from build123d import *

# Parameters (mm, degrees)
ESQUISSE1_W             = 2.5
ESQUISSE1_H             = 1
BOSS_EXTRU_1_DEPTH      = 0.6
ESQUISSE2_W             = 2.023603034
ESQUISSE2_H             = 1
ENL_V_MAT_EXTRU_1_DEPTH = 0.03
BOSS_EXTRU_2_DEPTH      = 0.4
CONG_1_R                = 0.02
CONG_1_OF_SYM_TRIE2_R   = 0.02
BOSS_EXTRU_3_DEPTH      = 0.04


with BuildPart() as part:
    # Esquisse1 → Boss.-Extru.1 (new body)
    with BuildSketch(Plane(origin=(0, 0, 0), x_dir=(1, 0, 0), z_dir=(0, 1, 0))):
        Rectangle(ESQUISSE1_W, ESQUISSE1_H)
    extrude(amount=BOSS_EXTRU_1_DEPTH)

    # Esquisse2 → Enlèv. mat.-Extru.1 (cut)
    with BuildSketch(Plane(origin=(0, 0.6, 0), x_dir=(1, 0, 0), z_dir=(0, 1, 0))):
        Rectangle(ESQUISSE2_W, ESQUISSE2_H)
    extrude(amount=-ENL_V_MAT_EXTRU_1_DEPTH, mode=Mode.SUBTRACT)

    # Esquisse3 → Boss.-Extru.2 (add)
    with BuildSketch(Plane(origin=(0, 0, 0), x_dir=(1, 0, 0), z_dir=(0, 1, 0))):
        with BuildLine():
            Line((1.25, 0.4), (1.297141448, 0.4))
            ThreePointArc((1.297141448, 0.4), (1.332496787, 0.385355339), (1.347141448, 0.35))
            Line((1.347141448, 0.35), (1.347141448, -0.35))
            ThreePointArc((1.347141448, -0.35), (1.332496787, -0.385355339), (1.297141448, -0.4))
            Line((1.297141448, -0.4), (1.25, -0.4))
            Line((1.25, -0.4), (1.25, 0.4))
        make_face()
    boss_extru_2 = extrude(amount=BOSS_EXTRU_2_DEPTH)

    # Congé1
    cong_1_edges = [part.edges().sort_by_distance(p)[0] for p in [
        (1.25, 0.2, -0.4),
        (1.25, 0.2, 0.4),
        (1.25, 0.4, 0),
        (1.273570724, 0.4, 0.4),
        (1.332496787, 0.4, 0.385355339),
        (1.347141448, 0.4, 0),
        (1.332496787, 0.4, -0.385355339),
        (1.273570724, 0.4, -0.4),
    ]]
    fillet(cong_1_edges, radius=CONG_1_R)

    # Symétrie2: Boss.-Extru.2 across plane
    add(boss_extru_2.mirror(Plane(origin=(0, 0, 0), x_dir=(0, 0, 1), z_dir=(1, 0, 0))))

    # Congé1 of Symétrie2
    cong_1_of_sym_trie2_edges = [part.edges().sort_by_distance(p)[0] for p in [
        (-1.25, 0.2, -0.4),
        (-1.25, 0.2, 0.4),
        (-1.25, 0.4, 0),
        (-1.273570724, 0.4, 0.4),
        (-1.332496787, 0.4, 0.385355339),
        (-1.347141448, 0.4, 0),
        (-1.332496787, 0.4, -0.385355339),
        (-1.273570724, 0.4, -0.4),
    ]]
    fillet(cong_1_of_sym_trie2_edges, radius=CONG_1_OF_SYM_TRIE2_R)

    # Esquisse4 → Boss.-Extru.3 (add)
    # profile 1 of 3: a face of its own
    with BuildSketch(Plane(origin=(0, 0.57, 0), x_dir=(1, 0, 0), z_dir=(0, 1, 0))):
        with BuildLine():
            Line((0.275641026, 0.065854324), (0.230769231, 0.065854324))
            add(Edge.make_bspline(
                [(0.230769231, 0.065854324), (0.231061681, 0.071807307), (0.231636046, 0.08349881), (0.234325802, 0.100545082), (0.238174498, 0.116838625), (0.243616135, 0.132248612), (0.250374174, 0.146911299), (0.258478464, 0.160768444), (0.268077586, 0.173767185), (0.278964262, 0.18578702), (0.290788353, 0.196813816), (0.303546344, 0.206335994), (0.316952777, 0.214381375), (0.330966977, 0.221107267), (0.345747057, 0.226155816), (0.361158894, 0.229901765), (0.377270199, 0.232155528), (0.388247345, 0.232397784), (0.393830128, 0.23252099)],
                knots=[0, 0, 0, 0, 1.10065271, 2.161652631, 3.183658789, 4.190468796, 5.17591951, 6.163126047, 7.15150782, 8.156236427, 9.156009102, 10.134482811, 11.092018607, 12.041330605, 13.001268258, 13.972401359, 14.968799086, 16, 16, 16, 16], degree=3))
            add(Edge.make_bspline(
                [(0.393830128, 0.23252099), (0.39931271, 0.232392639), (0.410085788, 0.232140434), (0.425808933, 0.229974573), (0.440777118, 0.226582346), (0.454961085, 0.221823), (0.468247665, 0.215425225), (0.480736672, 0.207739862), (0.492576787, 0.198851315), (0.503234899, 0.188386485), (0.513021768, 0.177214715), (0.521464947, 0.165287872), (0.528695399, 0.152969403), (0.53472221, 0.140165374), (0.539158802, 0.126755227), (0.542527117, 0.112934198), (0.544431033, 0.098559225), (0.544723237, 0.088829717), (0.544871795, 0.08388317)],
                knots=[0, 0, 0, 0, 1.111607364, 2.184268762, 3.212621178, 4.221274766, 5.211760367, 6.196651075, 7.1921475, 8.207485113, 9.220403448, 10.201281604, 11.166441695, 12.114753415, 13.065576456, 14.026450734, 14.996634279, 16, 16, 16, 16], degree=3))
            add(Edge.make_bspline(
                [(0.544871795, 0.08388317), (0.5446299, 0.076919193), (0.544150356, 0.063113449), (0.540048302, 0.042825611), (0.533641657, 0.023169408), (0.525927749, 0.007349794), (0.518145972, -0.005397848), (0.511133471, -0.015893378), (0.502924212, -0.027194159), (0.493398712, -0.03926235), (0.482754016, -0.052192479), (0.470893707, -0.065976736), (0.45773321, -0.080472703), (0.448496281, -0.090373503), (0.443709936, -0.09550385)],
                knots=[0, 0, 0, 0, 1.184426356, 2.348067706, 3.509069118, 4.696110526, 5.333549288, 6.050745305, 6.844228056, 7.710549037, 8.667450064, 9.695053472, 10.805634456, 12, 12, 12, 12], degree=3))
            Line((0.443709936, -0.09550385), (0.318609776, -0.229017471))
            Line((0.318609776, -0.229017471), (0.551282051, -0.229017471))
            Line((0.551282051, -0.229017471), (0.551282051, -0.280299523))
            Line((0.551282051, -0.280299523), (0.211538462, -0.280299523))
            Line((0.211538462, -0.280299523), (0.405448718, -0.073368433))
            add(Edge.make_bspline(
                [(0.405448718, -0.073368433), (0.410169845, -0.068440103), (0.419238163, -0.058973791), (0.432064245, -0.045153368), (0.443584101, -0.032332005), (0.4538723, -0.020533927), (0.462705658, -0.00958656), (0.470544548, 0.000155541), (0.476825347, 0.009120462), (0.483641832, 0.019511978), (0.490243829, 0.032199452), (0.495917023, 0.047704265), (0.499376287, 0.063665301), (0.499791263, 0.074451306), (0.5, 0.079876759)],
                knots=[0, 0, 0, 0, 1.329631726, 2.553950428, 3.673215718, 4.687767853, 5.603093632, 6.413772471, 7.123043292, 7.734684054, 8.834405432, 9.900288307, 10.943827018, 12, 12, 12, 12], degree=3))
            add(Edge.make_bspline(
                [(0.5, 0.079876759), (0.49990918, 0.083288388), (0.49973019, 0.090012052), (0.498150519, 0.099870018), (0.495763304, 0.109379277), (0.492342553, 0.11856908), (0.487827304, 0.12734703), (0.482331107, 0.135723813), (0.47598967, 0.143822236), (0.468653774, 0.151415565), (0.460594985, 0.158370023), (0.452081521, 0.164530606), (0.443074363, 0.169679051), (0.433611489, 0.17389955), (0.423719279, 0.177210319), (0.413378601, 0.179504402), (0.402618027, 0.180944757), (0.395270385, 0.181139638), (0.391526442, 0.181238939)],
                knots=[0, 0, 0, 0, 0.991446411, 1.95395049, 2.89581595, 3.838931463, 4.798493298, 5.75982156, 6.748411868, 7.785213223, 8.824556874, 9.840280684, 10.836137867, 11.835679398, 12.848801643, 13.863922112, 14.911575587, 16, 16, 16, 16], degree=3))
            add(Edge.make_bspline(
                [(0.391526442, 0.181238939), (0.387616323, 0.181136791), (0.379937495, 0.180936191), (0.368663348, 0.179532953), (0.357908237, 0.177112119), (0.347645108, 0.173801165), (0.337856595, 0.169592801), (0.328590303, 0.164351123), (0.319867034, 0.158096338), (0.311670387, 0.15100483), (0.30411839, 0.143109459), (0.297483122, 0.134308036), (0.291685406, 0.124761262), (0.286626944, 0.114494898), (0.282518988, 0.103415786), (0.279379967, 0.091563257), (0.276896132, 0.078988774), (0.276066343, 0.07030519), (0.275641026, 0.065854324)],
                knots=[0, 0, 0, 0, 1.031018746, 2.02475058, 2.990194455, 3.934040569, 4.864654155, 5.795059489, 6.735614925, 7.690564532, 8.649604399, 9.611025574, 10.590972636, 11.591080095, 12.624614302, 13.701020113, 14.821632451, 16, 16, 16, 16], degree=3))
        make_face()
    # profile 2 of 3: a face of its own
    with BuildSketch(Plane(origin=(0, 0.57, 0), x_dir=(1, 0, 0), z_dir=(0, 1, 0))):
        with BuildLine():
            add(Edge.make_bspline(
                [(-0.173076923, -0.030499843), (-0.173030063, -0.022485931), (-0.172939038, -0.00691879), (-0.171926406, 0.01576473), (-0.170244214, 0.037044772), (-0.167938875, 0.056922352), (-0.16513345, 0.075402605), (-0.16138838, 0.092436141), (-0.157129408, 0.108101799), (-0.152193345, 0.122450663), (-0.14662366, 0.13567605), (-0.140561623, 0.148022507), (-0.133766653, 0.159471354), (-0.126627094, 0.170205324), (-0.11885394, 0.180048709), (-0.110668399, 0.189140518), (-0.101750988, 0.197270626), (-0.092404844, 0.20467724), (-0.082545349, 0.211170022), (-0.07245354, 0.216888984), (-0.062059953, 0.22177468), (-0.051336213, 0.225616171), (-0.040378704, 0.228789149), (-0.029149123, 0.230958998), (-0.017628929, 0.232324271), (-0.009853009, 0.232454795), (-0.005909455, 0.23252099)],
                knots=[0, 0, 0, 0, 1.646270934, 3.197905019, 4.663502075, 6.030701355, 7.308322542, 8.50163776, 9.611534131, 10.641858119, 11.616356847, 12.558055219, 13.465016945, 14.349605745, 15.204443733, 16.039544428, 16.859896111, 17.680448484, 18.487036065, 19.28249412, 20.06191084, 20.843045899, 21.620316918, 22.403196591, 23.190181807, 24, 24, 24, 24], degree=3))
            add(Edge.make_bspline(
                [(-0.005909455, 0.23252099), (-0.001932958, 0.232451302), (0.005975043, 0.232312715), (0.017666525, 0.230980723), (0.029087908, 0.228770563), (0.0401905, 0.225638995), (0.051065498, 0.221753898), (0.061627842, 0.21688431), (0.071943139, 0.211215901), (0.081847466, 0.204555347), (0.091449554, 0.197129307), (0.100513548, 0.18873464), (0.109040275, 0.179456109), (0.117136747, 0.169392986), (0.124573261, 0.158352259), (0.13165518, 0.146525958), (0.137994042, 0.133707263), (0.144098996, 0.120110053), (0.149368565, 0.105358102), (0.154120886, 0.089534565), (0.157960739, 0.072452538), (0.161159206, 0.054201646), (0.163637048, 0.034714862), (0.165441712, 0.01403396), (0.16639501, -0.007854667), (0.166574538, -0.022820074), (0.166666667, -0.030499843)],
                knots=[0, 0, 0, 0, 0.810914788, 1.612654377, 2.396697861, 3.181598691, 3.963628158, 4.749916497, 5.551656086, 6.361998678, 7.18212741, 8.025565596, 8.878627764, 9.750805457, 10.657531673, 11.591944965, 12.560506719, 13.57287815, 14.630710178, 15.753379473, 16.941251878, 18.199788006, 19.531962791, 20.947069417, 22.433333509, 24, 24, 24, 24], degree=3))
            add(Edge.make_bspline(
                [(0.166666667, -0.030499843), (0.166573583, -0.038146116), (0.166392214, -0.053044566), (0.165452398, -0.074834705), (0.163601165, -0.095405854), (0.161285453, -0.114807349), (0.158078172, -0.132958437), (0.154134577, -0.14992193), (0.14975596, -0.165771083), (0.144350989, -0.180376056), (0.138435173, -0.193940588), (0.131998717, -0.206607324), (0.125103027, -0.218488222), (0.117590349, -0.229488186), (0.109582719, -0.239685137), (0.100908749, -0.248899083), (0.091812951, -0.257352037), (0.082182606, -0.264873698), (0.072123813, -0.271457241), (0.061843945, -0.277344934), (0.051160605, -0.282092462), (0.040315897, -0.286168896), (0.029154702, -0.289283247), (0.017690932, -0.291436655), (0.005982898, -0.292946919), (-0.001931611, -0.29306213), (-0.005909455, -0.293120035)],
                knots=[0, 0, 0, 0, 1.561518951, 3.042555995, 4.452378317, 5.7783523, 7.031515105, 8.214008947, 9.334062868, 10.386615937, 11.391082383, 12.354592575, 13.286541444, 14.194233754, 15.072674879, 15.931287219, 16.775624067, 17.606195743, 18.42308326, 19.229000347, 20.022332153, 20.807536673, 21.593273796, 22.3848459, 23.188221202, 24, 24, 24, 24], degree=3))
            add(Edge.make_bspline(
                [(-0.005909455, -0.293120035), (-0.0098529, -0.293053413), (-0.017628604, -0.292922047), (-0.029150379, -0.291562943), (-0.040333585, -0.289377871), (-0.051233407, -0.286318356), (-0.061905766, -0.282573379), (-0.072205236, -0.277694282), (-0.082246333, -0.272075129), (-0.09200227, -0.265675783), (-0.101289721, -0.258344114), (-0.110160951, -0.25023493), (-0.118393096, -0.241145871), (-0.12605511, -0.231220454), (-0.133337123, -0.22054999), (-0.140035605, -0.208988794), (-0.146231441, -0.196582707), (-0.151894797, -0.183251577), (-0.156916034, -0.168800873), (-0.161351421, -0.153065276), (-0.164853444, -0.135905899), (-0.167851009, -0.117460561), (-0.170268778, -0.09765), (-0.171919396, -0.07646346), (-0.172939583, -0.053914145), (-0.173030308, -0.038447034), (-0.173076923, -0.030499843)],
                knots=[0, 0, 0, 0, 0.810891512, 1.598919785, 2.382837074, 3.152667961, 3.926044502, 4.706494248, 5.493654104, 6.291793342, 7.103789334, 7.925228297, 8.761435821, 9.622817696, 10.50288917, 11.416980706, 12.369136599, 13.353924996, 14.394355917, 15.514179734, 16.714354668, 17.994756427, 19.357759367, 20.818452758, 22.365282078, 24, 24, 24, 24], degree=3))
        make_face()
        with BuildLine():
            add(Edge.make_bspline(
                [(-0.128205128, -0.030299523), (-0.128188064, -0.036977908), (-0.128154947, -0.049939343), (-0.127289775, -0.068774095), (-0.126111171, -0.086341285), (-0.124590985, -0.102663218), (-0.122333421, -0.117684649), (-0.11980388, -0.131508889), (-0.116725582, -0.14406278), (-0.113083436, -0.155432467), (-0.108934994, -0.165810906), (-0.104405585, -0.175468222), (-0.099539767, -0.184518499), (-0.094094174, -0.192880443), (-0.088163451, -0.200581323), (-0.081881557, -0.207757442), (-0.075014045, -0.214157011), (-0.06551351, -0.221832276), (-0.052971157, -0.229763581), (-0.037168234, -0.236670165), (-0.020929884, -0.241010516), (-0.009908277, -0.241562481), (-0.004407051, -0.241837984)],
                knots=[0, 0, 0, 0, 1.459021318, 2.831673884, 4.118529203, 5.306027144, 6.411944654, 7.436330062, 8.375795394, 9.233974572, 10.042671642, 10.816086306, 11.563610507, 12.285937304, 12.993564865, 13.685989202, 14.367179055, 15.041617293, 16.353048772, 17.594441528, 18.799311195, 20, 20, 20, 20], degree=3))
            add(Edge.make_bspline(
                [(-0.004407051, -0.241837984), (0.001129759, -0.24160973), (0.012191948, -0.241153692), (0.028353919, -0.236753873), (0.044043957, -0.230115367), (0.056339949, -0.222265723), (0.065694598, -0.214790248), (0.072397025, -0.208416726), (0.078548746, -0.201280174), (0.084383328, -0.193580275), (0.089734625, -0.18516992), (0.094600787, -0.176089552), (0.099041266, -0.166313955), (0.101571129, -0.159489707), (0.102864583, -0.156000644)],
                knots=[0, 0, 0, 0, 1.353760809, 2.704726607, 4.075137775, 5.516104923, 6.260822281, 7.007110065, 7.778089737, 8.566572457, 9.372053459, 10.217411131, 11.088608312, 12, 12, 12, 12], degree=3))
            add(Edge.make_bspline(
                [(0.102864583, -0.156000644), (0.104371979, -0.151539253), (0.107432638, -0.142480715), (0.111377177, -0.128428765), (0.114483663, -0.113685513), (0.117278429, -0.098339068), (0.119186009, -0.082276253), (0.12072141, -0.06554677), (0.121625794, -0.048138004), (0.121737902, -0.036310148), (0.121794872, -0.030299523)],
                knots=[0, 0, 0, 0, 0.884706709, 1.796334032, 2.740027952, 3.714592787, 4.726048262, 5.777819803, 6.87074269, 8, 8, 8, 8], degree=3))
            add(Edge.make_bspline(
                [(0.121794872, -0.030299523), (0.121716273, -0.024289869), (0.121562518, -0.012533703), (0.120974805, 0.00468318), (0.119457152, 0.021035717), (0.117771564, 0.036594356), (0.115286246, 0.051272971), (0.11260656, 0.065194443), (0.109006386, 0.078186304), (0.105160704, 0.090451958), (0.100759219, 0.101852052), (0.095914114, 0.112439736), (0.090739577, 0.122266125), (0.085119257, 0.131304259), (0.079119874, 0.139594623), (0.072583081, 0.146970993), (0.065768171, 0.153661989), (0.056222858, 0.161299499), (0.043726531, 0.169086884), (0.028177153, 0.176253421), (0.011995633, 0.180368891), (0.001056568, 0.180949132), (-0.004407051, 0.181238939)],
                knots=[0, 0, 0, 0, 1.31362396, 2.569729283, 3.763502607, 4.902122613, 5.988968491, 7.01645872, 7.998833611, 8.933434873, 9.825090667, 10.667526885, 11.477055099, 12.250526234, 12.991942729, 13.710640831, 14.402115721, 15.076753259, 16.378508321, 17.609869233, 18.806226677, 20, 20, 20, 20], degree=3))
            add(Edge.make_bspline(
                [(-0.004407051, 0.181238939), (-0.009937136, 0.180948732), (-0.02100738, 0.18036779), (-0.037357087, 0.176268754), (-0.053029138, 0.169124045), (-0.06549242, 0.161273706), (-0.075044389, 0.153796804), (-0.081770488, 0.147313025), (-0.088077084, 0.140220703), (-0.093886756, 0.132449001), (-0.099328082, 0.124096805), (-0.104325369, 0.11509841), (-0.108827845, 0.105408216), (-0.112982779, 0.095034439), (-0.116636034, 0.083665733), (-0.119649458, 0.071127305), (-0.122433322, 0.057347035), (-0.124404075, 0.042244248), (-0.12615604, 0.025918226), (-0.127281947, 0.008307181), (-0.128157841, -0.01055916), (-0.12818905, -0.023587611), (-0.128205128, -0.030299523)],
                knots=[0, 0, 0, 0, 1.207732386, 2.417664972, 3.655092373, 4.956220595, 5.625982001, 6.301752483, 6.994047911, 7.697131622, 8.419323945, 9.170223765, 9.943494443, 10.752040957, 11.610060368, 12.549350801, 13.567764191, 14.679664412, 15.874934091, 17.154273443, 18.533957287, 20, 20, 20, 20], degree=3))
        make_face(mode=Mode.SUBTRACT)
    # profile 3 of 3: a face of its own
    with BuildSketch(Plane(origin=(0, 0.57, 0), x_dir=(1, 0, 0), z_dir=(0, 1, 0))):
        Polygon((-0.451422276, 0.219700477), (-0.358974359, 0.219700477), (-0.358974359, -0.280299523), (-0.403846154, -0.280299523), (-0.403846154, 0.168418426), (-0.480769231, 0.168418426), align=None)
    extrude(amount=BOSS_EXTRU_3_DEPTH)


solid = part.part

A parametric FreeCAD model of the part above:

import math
import FreeCAD as App
import Part
import Sketcher

V = App.Vector
Q = App.Units.Quantity


def edges_at(feature, points):
    """Names of the edges that pass closest to the given points."""
    edges = feature.Shape.Edges
    near = lambda p: min(range(len(edges)), key=lambda i: edges[i].distToShape(Part.Vertex(*p))[0])
    return sorted({f"Edge{near(p) + 1}" for p in points})


def add_polygon(sketch, points):
    """Adds a closed chain of lines whose ends are joined by coincident constraints."""
    first, n = sketch.GeometryCount, len(points)
    for a, b in zip(points, points[1:] + points[:1]):
        sketch.addGeometry(Part.LineSegment(App.Vector(*a, 0), App.Vector(*b, 0)), False)
    for i in range(n):
        sketch.addConstraint(Sketcher.Constraint("Coincident", first + i, 2, first + (i + 1) % n, 1))

doc = App.newDocument("Part")
params = doc.addObject("Spreadsheet::Sheet", "Params")
for row, (alias, value) in enumerate([
    ("sketch1_height", "1 mm"),
    ("sketch1_width", "2.5 mm"),
    ("pad1_length", "0.6 mm"),
    ("sketch2_height", "1 mm"),
    ("pocket1_length", "0.03 mm"),
    ("sketch3_radius", "0.05 mm"),
    ("sketch3_height", "0.8 mm"),
    ("pad2_length", "0.4 mm"),
    ("fillet_radius", "0.02 mm"),
    ("fillet2_radius", "0.02 mm"),
    ("sketch4_height", "0.5 mm"),
    ("pad3_length", "0.04 mm"),
], start=1):
    params.set(f"A{row}", alias)
    params.set(f"B{row}", "=" + value)
    params.setAlias(f"B{row}", alias)

body = doc.addObject("PartDesign::Body", "Body")

sketch1 = body.newObject("Sketcher::SketchObject", "Sketch")
sketch1.AttachmentSupport = (doc.getObject("XZ_Plane"), [""])
sketch1.MapMode = "FlatFace"
add_polygon(sketch1, [(-1.25, -0.5), (-1.25, 0.5), (1.25, 0.5), (1.25, -0.5)])
sketch1.addConstraint(Sketcher.Constraint("Vertical", 0))
sketch1.addConstraint(Sketcher.Constraint("Horizontal", 1))
sketch1.addConstraint(Sketcher.Constraint("Vertical", 2))
sketch1.addConstraint(Sketcher.Constraint("Horizontal", 3))
sketch1.addConstraint(Sketcher.Constraint("Symmetric", 0, 2, 2, 2, -1, 1))
sketch1.addConstraint(Sketcher.Constraint("DistanceY", 0, 1, 0, 2, Q("1 mm")))
sketch1.addConstraint(Sketcher.Constraint("DistanceX", 1, 1, 1, 2, Q("2.5 mm")))
sketch1.setExpression("Constraints[9]", "Params.sketch1_height")
sketch1.setExpression("Constraints[10]", "Params.sketch1_width")
pad1 = body.newObject("PartDesign::Pad", "Pad")
pad1.Profile = sketch1
pad1.setExpression("Length", "Params.pad1_length")
pad1.Reversed = True

sketch2 = body.newObject("Sketcher::SketchObject", "Sketch001")
sketch2.AttachmentSupport = (doc.getObject("XZ_Plane"), [""])
sketch2.MapMode = "FlatFace"
sketch2.AttachmentOffset = App.Placement(V(0, 0, -0.6), App.Rotation())
add_polygon(sketch2, [(-1.011802, -0.5), (-1.011802, 0.5), (1.011802, 0.5), (1.011802, -0.5)])
sketch2.addConstraint(Sketcher.Constraint("Vertical", 0))
sketch2.addConstraint(Sketcher.Constraint("Horizontal", 1))
sketch2.addConstraint(Sketcher.Constraint("Vertical", 2))
sketch2.addConstraint(Sketcher.Constraint("Horizontal", 3))
sketch2.addConstraint(Sketcher.Constraint("Symmetric", 0, 2, 2, 2, -1, 1))
sketch2.addConstraint(Sketcher.Constraint("DistanceY", 0, 1, 0, 2, Q("1 mm")))
sketch2.addConstraint(Sketcher.Constraint("DistanceX", 0, 2, -1, 1, Q("1.011802 mm")))
sketch2.setExpression("Constraints[9]", "Params.sketch2_height")
pocket1 = body.newObject("PartDesign::Pocket", "Pocket")
pocket1.Profile = sketch2
pocket1.setExpression("Length", "Params.pocket1_length")
pocket1.Reversed = True

sketch3 = body.newObject("Sketcher::SketchObject", "Sketch002")
sketch3.AttachmentSupport = (doc.getObject("XZ_Plane"), [""])
sketch3.MapMode = "FlatFace"
sketch3.addGeometry(Part.LineSegment(V(1.297141, -0.4, 0), V(1.25, -0.4, 0)), False)
sketch3.addGeometry(Part.LineSegment(V(1.25, -0.4, 0), V(1.25, 0.4, 0)), False)
sketch3.addGeometry(Part.LineSegment(V(1.25, 0.4, 0), V(1.297141, 0.4, 0)), False)
sketch3.addGeometry(Part.ArcOfCircle(Part.Circle(V(1.297141, 0.35, 0), V(0, 0, 1), 0.05), math.radians(0), math.radians(90)), False)
sketch3.addGeometry(Part.LineSegment(V(1.347141, 0.35, 0), V(1.347141, -0.35, 0)), False)
sketch3.addGeometry(Part.ArcOfCircle(Part.Circle(V(1.297141, -0.35, 0), V(0, 0, 1), 0.05), math.radians(-90), math.radians(0)), False)
sketch3.addConstraint(Sketcher.Constraint("Coincident", 0, 2, 1, 1))
sketch3.addConstraint(Sketcher.Constraint("Coincident", 1, 2, 2, 1))
sketch3.addConstraint(Sketcher.Constraint("Tangent", 2, 2, 3, 2))
sketch3.addConstraint(Sketcher.Constraint("Tangent", 3, 1, 4, 1))
sketch3.addConstraint(Sketcher.Constraint("Tangent", 4, 2, 5, 2))
sketch3.addConstraint(Sketcher.Constraint("Tangent", 5, 1, 0, 1))
sketch3.addConstraint(Sketcher.Constraint("Horizontal", 0))
sketch3.addConstraint(Sketcher.Constraint("Vertical", 1))
sketch3.addConstraint(Sketcher.Constraint("Horizontal", 2))
sketch3.addConstraint(Sketcher.Constraint("Vertical", 4))
sketch3.addConstraint(Sketcher.Constraint("Equal", 3, 5))
sketch3.addConstraint(Sketcher.Constraint("Radius", 3, Q("0.05 mm")))
sketch3.addConstraint(Sketcher.Constraint("DistanceY", 1, 1, 1, 2, Q("0.8 mm")))
sketch3.addConstraint(Sketcher.Constraint("DistanceY", 0, 2, -1, 1, Q("0.4 mm")))
sketch3.addConstraint(Sketcher.Constraint("DistanceX", -1, 1, 0, 2, Q("1.25 mm")))
sketch3.addConstraint(Sketcher.Constraint("DistanceX", 0, 2, 0, 1, Q("0.047141 mm")))
sketch3.setExpression("Constraints[11]", "Params.sketch3_radius")
sketch3.setExpression("Constraints[12]", "Params.sketch3_height")
pad2 = body.newObject("PartDesign::Pad", "Pad001")
pad2.Profile = sketch3
pad2.setExpression("Length", "Params.pad2_length")
pad2.Reversed = True
doc.recompute()

fillet = body.newObject("PartDesign::Fillet", "Fillet")
fillet.Base = (pad2, edges_at(pad2, [
    (1.25, 0.2, -0.4),
    (1.25, 0.2, 0.4),
    (1.25, 0.4, 0),
    (1.274, 0.4, 0.4),
    (1.332, 0.4, 0.385),
    (1.347, 0.4, 0),
    (1.332, 0.4, -0.385),
    (1.274, 0.4, -0.4),
]))
fillet.setExpression("Radius", "Params.fillet_radius")
doc.recompute()

mirrored = body.newObject("PartDesign::Mirrored", "Mirrored")
mirrored.Originals = [pad2]
mirrored.MirrorPlane = (doc.getObject("YZ_Plane"), [""])
body.Tip = mirrored
doc.recompute()

fillet2 = body.newObject("PartDesign::Fillet", "Fillet001")
fillet2.Base = (mirrored, edges_at(mirrored, [
    (-1.25, 0.2, -0.4),
    (-1.25, 0.2, 0.4),
    (-1.25, 0.4, 0),
    (-1.274, 0.4, 0.4),
    (-1.332, 0.4, 0.385),
    (-1.347, 0.4, 0),
    (-1.332, 0.4, -0.385),
    (-1.274, 0.4, -0.4),
]))
fillet2.setExpression("Radius", "Params.fillet2_radius")

sketch4 = body.newObject("Sketcher::SketchObject", "Sketch003")
sketch4.AttachmentSupport = (doc.getObject("XZ_Plane"), [""])
sketch4.MapMode = "FlatFace"
sketch4.AttachmentOffset = App.Placement(V(0, 0, -0.57), App.Rotation())
sketch4.addGeometry(Part.LineSegment(V(0.230769, -0.065854, 0), V(0.275641, -0.065854, 0)), False)
sketch4.addGeometry(Part.BSplineCurve([V(0.391526, -0.181239, 0), V(0.387616, -0.181137, 0), V(0.379937, -0.180936, 0), V(0.368663, -0.179533, 0), V(0.357908, -0.177112, 0), V(0.347645, -0.173801, 0), V(0.337857, -0.169593, 0), V(0.32859, -0.164351, 0), V(0.319867, -0.158096, 0), V(0.31167, -0.151005, 0), V(0.304118, -0.143109, 0), V(0.297483, -0.134308, 0), V(0.291685, -0.124761, 0), V(0.286627, -0.114495, 0), V(0.282519, -0.103416, 0), V(0.27938, -0.091563, 0), V(0.276896, -0.078989, 0), V(0.276066, -0.070305, 0), V(0.275641, -0.065854, 0)], [4, 1, 1, 1, 1, 1, 1, 1, 1, 1, 1, 1, 1, 1, 1, 1, 4], [0, 1.031018746, 2.02475058, 2.990194455, 3.934040569, 4.864654155, 5.795059489, 6.735614925, 7.690564532, 8.649604399, 9.611025574, 10.590972636, 11.591080095, 12.624614302, 13.701020113, 14.821632451, 16], False, 3, [1, 1, 1, 1, 1, 1, 1, 1, 1, 1, 1, 1, 1, 1, 1, 1, 1, 1, 1], False), False)
sketch4.addGeometry(Part.BSplineCurve([V(0.5, -0.079877, 0), V(0.499909, -0.083288, 0), V(0.49973, -0.090012, 0), V(0.498151, -0.09987, 0), V(0.495763, -0.109379, 0), V(0.492343, -0.118569, 0), V(0.487827, -0.127347, 0), V(0.482331, -0.135724, 0), V(0.47599, -0.143822, 0), V(0.468654, -0.151416, 0), V(0.460595, -0.15837, 0), V(0.452082, -0.164531, 0), V(0.443074, -0.169679, 0), V(0.433611, -0.1739, 0), V(0.423719, -0.17721, 0), V(0.413379, -0.179504, 0), V(0.402618, -0.180945, 0), V(0.39527, -0.18114, 0), V(0.391526, -0.181239, 0)], [4, 1, 1, 1, 1, 1, 1, 1, 1, 1, 1, 1, 1, 1, 1, 1, 4], [0, 0.991446411, 1.95395049, 2.89581595, 3.838931463, 4.798493298, 5.75982156, 6.748411868, 7.785213223, 8.824556874, 9.840280684, 10.836137867, 11.835679398, 12.848801643, 13.863922112, 14.911575587, 16], False, 3, [1, 1, 1, 1, 1, 1, 1, 1, 1, 1, 1, 1, 1, 1, 1, 1, 1, 1, 1], False), False)
sketch4.addGeometry(Part.BSplineCurve([V(0.405449, 0.073368, 0), V(0.41017, 0.06844, 0), V(0.419238, 0.058974, 0), V(0.432064, 0.045153, 0), V(0.443584, 0.032332, 0), V(0.453872, 0.020534, 0), V(0.462706, 0.009587, 0), V(0.470545, -0.000156, 0), V(0.476825, -0.00912, 0), V(0.483642, -0.019512, 0), V(0.490244, -0.032199, 0), V(0.495917, -0.047704, 0), V(0.499376, -0.063665, 0), V(0.499791, -0.074451, 0), V(0.5, -0.079877, 0)], [4, 1, 1, 1, 1, 1, 1, 1, 1, 1, 1, 1, 4], [0, 1.329631726, 2.553950428, 3.673215718, 4.687767853, 5.603093632, 6.413772471, 7.123043292, 7.734684054, 8.834405432, 9.900288307, 10.943827018, 12], False, 3, [1, 1, 1, 1, 1, 1, 1, 1, 1, 1, 1, 1, 1, 1, 1], False), False)
sketch4.addGeometry(Part.LineSegment(V(0.405449, 0.073368, 0), V(0.211538, 0.2803, 0)), False)
sketch4.addGeometry(Part.LineSegment(V(0.211538, 0.2803, 0), V(0.551282, 0.2803, 0)), False)
sketch4.addGeometry(Part.LineSegment(V(0.551282, 0.2803, 0), V(0.551282, 0.229017, 0)), False)
sketch4.addGeometry(Part.LineSegment(V(0.551282, 0.229017, 0), V(0.31861, 0.229017, 0)), False)
sketch4.addGeometry(Part.LineSegment(V(0.31861, 0.229017, 0), V(0.44371, 0.095504, 0)), False)
sketch4.addGeometry(Part.BSplineCurve([V(0.544872, -0.083883, 0), V(0.54463, -0.076919, 0), V(0.54415, -0.063113, 0), V(0.540048, -0.042826, 0), V(0.533642, -0.023169, 0), V(0.525928, -0.00735, 0), V(0.518146, 0.005398, 0), V(0.511133, 0.015893, 0), V(0.502924, 0.027194, 0), V(0.493399, 0.039262, 0), V(0.482754, 0.052192, 0), V(0.470894, 0.065977, 0), V(0.457733, 0.080473, 0), V(0.448496, 0.090374, 0), V(0.44371, 0.095504, 0)], [4, 1, 1, 1, 1, 1, 1, 1, 1, 1, 1, 1, 4], [0, 1.184426356, 2.348067706, 3.509069118, 4.696110526, 5.333549288, 6.050745305, 6.844228056, 7.710549037, 8.667450064, 9.695053472, 10.805634456, 12], False, 3, [1, 1, 1, 1, 1, 1, 1, 1, 1, 1, 1, 1, 1, 1, 1], False), False)
sketch4.addGeometry(Part.BSplineCurve([V(0.39383, -0.232521, 0), V(0.399313, -0.232393, 0), V(0.410086, -0.23214, 0), V(0.425809, -0.229975, 0), V(0.440777, -0.226582, 0), V(0.454961, -0.221823, 0), V(0.468248, -0.215425, 0), V(0.480737, -0.20774, 0), V(0.492577, -0.198851, 0), V(0.503235, -0.188386, 0), V(0.513022, -0.177215, 0), V(0.521465, -0.165288, 0), V(0.528695, -0.152969, 0), V(0.534722, -0.140165, 0), V(0.539159, -0.126755, 0), V(0.542527, -0.112934, 0), V(0.544431, -0.098559, 0), V(0.544723, -0.08883, 0), V(0.544872, -0.083883, 0)], [4, 1, 1, 1, 1, 1, 1, 1, 1, 1, 1, 1, 1, 1, 1, 1, 4], [0, 1.111607364, 2.184268762, 3.212621178, 4.221274766, 5.211760367, 6.196651075, 7.1921475, 8.207485113, 9.220403448, 10.201281604, 11.166441695, 12.114753415, 13.065576456, 14.026450734, 14.996634279, 16], False, 3, [1, 1, 1, 1, 1, 1, 1, 1, 1, 1, 1, 1, 1, 1, 1, 1, 1, 1, 1], False), False)
sketch4.addGeometry(Part.BSplineCurve([V(0.230769, -0.065854, 0), V(0.231062, -0.071807, 0), V(0.231636, -0.083499, 0), V(0.234326, -0.100545, 0), V(0.238174, -0.116839, 0), V(0.243616, -0.132249, 0), V(0.250374, -0.146911, 0), V(0.258478, -0.160768, 0), V(0.268078, -0.173767, 0), V(0.278964, -0.185787, 0), V(0.290788, -0.196814, 0), V(0.303546, -0.206336, 0), V(0.316953, -0.214381, 0), V(0.330967, -0.221107, 0), V(0.345747, -0.226156, 0), V(0.361159, -0.229902, 0), V(0.37727, -0.232156, 0), V(0.388247, -0.232398, 0), V(0.39383, -0.232521, 0)], [4, 1, 1, 1, 1, 1, 1, 1, 1, 1, 1, 1, 1, 1, 1, 1, 4], [0, 1.10065271, 2.161652631, 3.183658789, 4.190468796, 5.17591951, 6.163126047, 7.15150782, 8.156236427, 9.156009102, 10.134482811, 11.092018607, 12.041330605, 13.001268258, 13.972401359, 14.968799086, 16], False, 3, [1, 1, 1, 1, 1, 1, 1, 1, 1, 1, 1, 1, 1, 1, 1, 1, 1, 1, 1], False), False)
sketch4.addGeometry(Part.BSplineCurve([V(-0.173077, 0.0305, 0), V(-0.17303, 0.022486, 0), V(-0.172939, 0.006919, 0), V(-0.171926, -0.015765, 0), V(-0.170244, -0.037045, 0), V(-0.167939, -0.056922, 0), V(-0.165133, -0.075403, 0), V(-0.161388, -0.092436, 0), V(-0.157129, -0.108102, 0), V(-0.152193, -0.122451, 0), V(-0.146624, -0.135676, 0), V(-0.140562, -0.148023, 0), V(-0.133767, -0.159471, 0), V(-0.126627, -0.170205, 0), V(-0.118854, -0.180049, 0), V(-0.110668, -0.189141, 0), V(-0.101751, -0.197271, 0), V(-0.092405, -0.204677, 0), V(-0.082545, -0.21117, 0), V(-0.072454, -0.216889, 0), V(-0.06206, -0.221775, 0), V(-0.051336, -0.225616, 0), V(-0.040379, -0.228789, 0), V(-0.029149, -0.230959, 0), V(-0.017629, -0.232324, 0), V(-0.009853, -0.232455, 0), V(-0.005909, -0.232521, 0)], [4, 1, 1, 1, 1, 1, 1, 1, 1, 1, 1, 1, 1, 1, 1, 1, 1, 1, 1, 1, 1, 1, 1, 1, 4], [0, 1.646270934, 3.197905019, 4.663502075, 6.030701355, 7.308322542, 8.50163776, 9.611534131, 10.641858119, 11.616356847, 12.558055219, 13.465016945, 14.349605745, 15.204443733, 16.039544428, 16.859896111, 17.680448484, 18.487036065, 19.28249412, 20.06191084, 20.843045899, 21.620316918, 22.403196591, 23.190181807, 24], False, 3, [1, 1, 1, 1, 1, 1, 1, 1, 1, 1, 1, 1, 1, 1, 1, 1, 1, 1, 1, 1, 1, 1, 1, 1, 1, 1, 1], False), False)
sketch4.addGeometry(Part.BSplineCurve([V(-0.005909, 0.29312, 0), V(-0.009853, 0.293053, 0), V(-0.017629, 0.292922, 0), V(-0.02915, 0.291563, 0), V(-0.040334, 0.289378, 0), V(-0.051233, 0.286318, 0), V(-0.061906, 0.282573, 0), V(-0.072205, 0.277694, 0), V(-0.082246, 0.272075, 0), V(-0.092002, 0.265676, 0), V(-0.10129, 0.258344, 0), V(-0.110161, 0.250235, 0), V(-0.118393, 0.241146, 0), V(-0.126055, 0.23122, 0), V(-0.133337, 0.22055, 0), V(-0.140036, 0.208989, 0), V(-0.146231, 0.196583, 0), V(-0.151895, 0.183252, 0), V(-0.156916, 0.168801, 0), V(-0.161351, 0.153065, 0), V(-0.164853, 0.135906, 0), V(-0.167851, 0.117461, 0), V(-0.170269, 0.09765, 0), V(-0.171919, 0.076463, 0), V(-0.17294, 0.053914, 0), V(-0.17303, 0.038447, 0), V(-0.173077, 0.0305, 0)], [4, 1, 1, 1, 1, 1, 1, 1, 1, 1, 1, 1, 1, 1, 1, 1, 1, 1, 1, 1, 1, 1, 1, 1, 4], [0, 0.810891512, 1.598919785, 2.382837074, 3.152667961, 3.926044502, 4.706494248, 5.493654104, 6.291793342, 7.103789334, 7.925228297, 8.761435821, 9.622817696, 10.50288917, 11.416980706, 12.369136599, 13.353924996, 14.394355917, 15.514179734, 16.714354668, 17.994756427, 19.357759367, 20.818452758, 22.365282078, 24], False, 3, [1, 1, 1, 1, 1, 1, 1, 1, 1, 1, 1, 1, 1, 1, 1, 1, 1, 1, 1, 1, 1, 1, 1, 1, 1, 1, 1], False), False)
sketch4.addGeometry(Part.BSplineCurve([V(0.166667, 0.0305, 0), V(0.166574, 0.038146, 0), V(0.166392, 0.053045, 0), V(0.165452, 0.074835, 0), V(0.163601, 0.095406, 0), V(0.161285, 0.114807, 0), V(0.158078, 0.132958, 0), V(0.154135, 0.149922, 0), V(0.149756, 0.165771, 0), V(0.144351, 0.180376, 0), V(0.138435, 0.193941, 0), V(0.131999, 0.206607, 0), V(0.125103, 0.218488, 0), V(0.11759, 0.229488, 0), V(0.109583, 0.239685, 0), V(0.100909, 0.248899, 0), V(0.091813, 0.257352, 0), V(0.082183, 0.264874, 0), V(0.072124, 0.271457, 0), V(0.061844, 0.277345, 0), V(0.051161, 0.282092, 0), V(0.040316, 0.286169, 0), V(0.029155, 0.289283, 0), V(0.017691, 0.291437, 0), V(0.005983, 0.292947, 0), V(-0.001932, 0.293062, 0), V(-0.005909, 0.29312, 0)], [4, 1, 1, 1, 1, 1, 1, 1, 1, 1, 1, 1, 1, 1, 1, 1, 1, 1, 1, 1, 1, 1, 1, 1, 4], [0, 1.561518951, 3.042555995, 4.452378317, 5.7783523, 7.031515105, 8.214008947, 9.334062868, 10.386615937, 11.391082383, 12.354592575, 13.286541444, 14.194233754, 15.072674879, 15.931287219, 16.775624067, 17.606195743, 18.42308326, 19.229000347, 20.022332153, 20.807536673, 21.593273796, 22.3848459, 23.188221202, 24], False, 3, [1, 1, 1, 1, 1, 1, 1, 1, 1, 1, 1, 1, 1, 1, 1, 1, 1, 1, 1, 1, 1, 1, 1, 1, 1, 1, 1], False), False)
sketch4.addGeometry(Part.BSplineCurve([V(-0.005909, -0.232521, 0), V(-0.001933, -0.232451, 0), V(0.005975, -0.232313, 0), V(0.017667, -0.230981, 0), V(0.029088, -0.228771, 0), V(0.04019, -0.225639, 0), V(0.051065, -0.221754, 0), V(0.061628, -0.216884, 0), V(0.071943, -0.211216, 0), V(0.081847, -0.204555, 0), V(0.09145, -0.197129, 0), V(0.100514, -0.188735, 0), V(0.10904, -0.179456, 0), V(0.117137, -0.169393, 0), V(0.124573, -0.158352, 0), V(0.131655, -0.146526, 0), V(0.137994, -0.133707, 0), V(0.144099, -0.12011, 0), V(0.149369, -0.105358, 0), V(0.154121, -0.089535, 0), V(0.157961, -0.072453, 0), V(0.161159, -0.054202, 0), V(0.163637, -0.034715, 0), V(0.165442, -0.014034, 0), V(0.166395, 0.007855, 0), V(0.166575, 0.02282, 0), V(0.166667, 0.0305, 0)], [4, 1, 1, 1, 1, 1, 1, 1, 1, 1, 1, 1, 1, 1, 1, 1, 1, 1, 1, 1, 1, 1, 1, 1, 4], [0, 0.810914788, 1.612654377, 2.396697861, 3.181598691, 3.963628158, 4.749916497, 5.551656086, 6.361998678, 7.18212741, 8.025565596, 8.878627764, 9.750805457, 10.657531673, 11.591944965, 12.560506719, 13.57287815, 14.630710178, 15.753379473, 16.941251878, 18.199788006, 19.531962791, 20.947069417, 22.433333509, 24], False, 3, [1, 1, 1, 1, 1, 1, 1, 1, 1, 1, 1, 1, 1, 1, 1, 1, 1, 1, 1, 1, 1, 1, 1, 1, 1, 1, 1], False), False)
sketch4.addGeometry(Part.BSplineCurve([V(-0.004407, -0.181239, 0), V(-0.009937, -0.180949, 0), V(-0.021007, -0.180368, 0), V(-0.037357, -0.176269, 0), V(-0.053029, -0.169124, 0), V(-0.065492, -0.161274, 0), V(-0.075044, -0.153797, 0), V(-0.08177, -0.147313, 0), V(-0.088077, -0.140221, 0), V(-0.093887, -0.132449, 0), V(-0.099328, -0.124097, 0), V(-0.104325, -0.115098, 0), V(-0.108828, -0.105408, 0), V(-0.112983, -0.095034, 0), V(-0.116636, -0.083666, 0), V(-0.119649, -0.071127, 0), V(-0.122433, -0.057347, 0), V(-0.124404, -0.042244, 0), V(-0.126156, -0.025918, 0), V(-0.127282, -0.008307, 0), V(-0.128158, 0.010559, 0), V(-0.128189, 0.023588, 0), V(-0.128205, 0.0303, 0)], [4, 1, 1, 1, 1, 1, 1, 1, 1, 1, 1, 1, 1, 1, 1, 1, 1, 1, 1, 1, 4], [0, 1.207732386, 2.417664972, 3.655092373, 4.956220595, 5.625982001, 6.301752483, 6.994047911, 7.697131622, 8.419323945, 9.170223765, 9.943494443, 10.752040957, 11.610060368, 12.549350801, 13.567764191, 14.679664412, 15.874934091, 17.154273443, 18.533957287, 20], False, 3, [1, 1, 1, 1, 1, 1, 1, 1, 1, 1, 1, 1, 1, 1, 1, 1, 1, 1, 1, 1, 1, 1, 1], False), False)
sketch4.addGeometry(Part.BSplineCurve([V(0.121795, 0.0303, 0), V(0.121716, 0.02429, 0), V(0.121563, 0.012534, 0), V(0.120975, -0.004683, 0), V(0.119457, -0.021036, 0), V(0.117772, -0.036594, 0), V(0.115286, -0.051273, 0), V(0.112607, -0.065194, 0), V(0.109006, -0.078186, 0), V(0.105161, -0.090452, 0), V(0.100759, -0.101852, 0), V(0.095914, -0.11244, 0), V(0.09074, -0.122266, 0), V(0.085119, -0.131304, 0), V(0.07912, -0.139595, 0), V(0.072583, -0.146971, 0), V(0.065768, -0.153662, 0), V(0.056223, -0.161299, 0), V(0.043727, -0.169087, 0), V(0.028177, -0.176253, 0), V(0.011996, -0.180369, 0), V(0.001057, -0.180949, 0), V(-0.004407, -0.181239, 0)], [4, 1, 1, 1, 1, 1, 1, 1, 1, 1, 1, 1, 1, 1, 1, 1, 1, 1, 1, 1, 4], [0, 1.31362396, 2.569729283, 3.763502607, 4.902122613, 5.988968491, 7.01645872, 7.998833611, 8.933434873, 9.825090667, 10.667526885, 11.477055099, 12.250526234, 12.991942729, 13.710640831, 14.402115721, 15.076753259, 16.378508321, 17.609869233, 18.806226677, 20], False, 3, [1, 1, 1, 1, 1, 1, 1, 1, 1, 1, 1, 1, 1, 1, 1, 1, 1, 1, 1, 1, 1, 1, 1], False), False)
sketch4.addGeometry(Part.BSplineCurve([V(0.102865, 0.156001, 0), V(0.104372, 0.151539, 0), V(0.107433, 0.142481, 0), V(0.111377, 0.128429, 0), V(0.114484, 0.113686, 0), V(0.117278, 0.098339, 0), V(0.119186, 0.082276, 0), V(0.120721, 0.065547, 0), V(0.121626, 0.048138, 0), V(0.121738, 0.03631, 0), V(0.121795, 0.0303, 0)], [4, 1, 1, 1, 1, 1, 1, 1, 4], [0, 0.884706709, 1.796334032, 2.740027952, 3.714592787, 4.726048262, 5.777819803, 6.87074269, 8], False, 3, [1, 1, 1, 1, 1, 1, 1, 1, 1, 1, 1], False), False)
sketch4.addGeometry(Part.BSplineCurve([V(-0.004407, 0.241838, 0), V(0.00113, 0.24161, 0), V(0.012192, 0.241154, 0), V(0.028354, 0.236754, 0), V(0.044044, 0.230115, 0), V(0.05634, 0.222266, 0), V(0.065695, 0.21479, 0), V(0.072397, 0.208417, 0), V(0.078549, 0.20128, 0), V(0.084383, 0.19358, 0), V(0.089735, 0.18517, 0), V(0.094601, 0.17609, 0), V(0.099041, 0.166314, 0), V(0.101571, 0.15949, 0), V(0.102865, 0.156001, 0)], [4, 1, 1, 1, 1, 1, 1, 1, 1, 1, 1, 1, 4], [0, 1.353760809, 2.704726607, 4.075137775, 5.516104923, 6.260822281, 7.007110065, 7.778089737, 8.566572457, 9.372053459, 10.217411131, 11.088608312, 12], False, 3, [1, 1, 1, 1, 1, 1, 1, 1, 1, 1, 1, 1, 1, 1, 1], False), False)
sketch4.addGeometry(Part.BSplineCurve([V(-0.128205, 0.0303, 0), V(-0.128188, 0.036978, 0), V(-0.128155, 0.049939, 0), V(-0.12729, 0.068774, 0), V(-0.126111, 0.086341, 0), V(-0.124591, 0.102663, 0), V(-0.122333, 0.117685, 0), V(-0.119804, 0.131509, 0), V(-0.116726, 0.144063, 0), V(-0.113083, 0.155432, 0), V(-0.108935, 0.165811, 0), V(-0.104406, 0.175468, 0), V(-0.09954, 0.184518, 0), V(-0.094094, 0.19288, 0), V(-0.088163, 0.200581, 0), V(-0.081882, 0.207757, 0), V(-0.075014, 0.214157, 0), V(-0.065514, 0.221832, 0), V(-0.052971, 0.229764, 0), V(-0.037168, 0.23667, 0), V(-0.02093, 0.241011, 0), V(-0.009908, 0.241562, 0), V(-0.004407, 0.241838, 0)], [4, 1, 1, 1, 1, 1, 1, 1, 1, 1, 1, 1, 1, 1, 1, 1, 1, 1, 1, 1, 4], [0, 1.459021318, 2.831673884, 4.118529203, 5.306027144, 6.411944654, 7.436330062, 8.375795394, 9.233974572, 10.042671642, 10.816086306, 11.563610507, 12.285937304, 12.993564865, 13.685989202, 14.367179055, 15.041617293, 16.353048772, 17.594441528, 18.799311195, 20], False, 3, [1, 1, 1, 1, 1, 1, 1, 1, 1, 1, 1, 1, 1, 1, 1, 1, 1, 1, 1, 1, 1, 1, 1], False), False)
add_polygon(sketch4, [(-0.358974, -0.2197), (-0.451422, -0.2197), (-0.480769, -0.168418), (-0.403846, -0.168418), (-0.403846, 0.2803), (-0.358974, 0.2803)])
sketch4.addConstraint(Sketcher.Constraint("Block", 1))
sketch4.addConstraint(Sketcher.Constraint("Block", 2))
sketch4.addConstraint(Sketcher.Constraint("Block", 3))
sketch4.addConstraint(Sketcher.Constraint("Block", 9))
sketch4.addConstraint(Sketcher.Constraint("Block", 10))
sketch4.addConstraint(Sketcher.Constraint("Block", 11))
sketch4.addConstraint(Sketcher.Constraint("Block", 12))
sketch4.addConstraint(Sketcher.Constraint("Block", 13))
sketch4.addConstraint(Sketcher.Constraint("Block", 14))
sketch4.addConstraint(Sketcher.Constraint("Block", 15))
sketch4.addConstraint(Sketcher.Constraint("Block", 16))
sketch4.addConstraint(Sketcher.Constraint("Block", 17))
sketch4.addConstraint(Sketcher.Constraint("Block", 18))
sketch4.addConstraint(Sketcher.Constraint("Block", 19))
sketch4.addConstraint(Sketcher.Constraint("Block", 20))
sketch4.addConstraint(Sketcher.Constraint("Coincident", 0, 2, 1, 2))
sketch4.addConstraint(Sketcher.Constraint("Coincident", 3, 1, 4, 1))
sketch4.addConstraint(Sketcher.Constraint("Coincident", 4, 2, 5, 1))
sketch4.addConstraint(Sketcher.Constraint("Coincident", 5, 2, 6, 1))
sketch4.addConstraint(Sketcher.Constraint("Coincident", 6, 2, 7, 1))
sketch4.addConstraint(Sketcher.Constraint("Coincident", 7, 2, 8, 1))
sketch4.addConstraint(Sketcher.Constraint("Coincident", 8, 2, 9, 2))
sketch4.addConstraint(Sketcher.Constraint("Coincident", 11, 1, 0, 1))
sketch4.addConstraint(Sketcher.Constraint("Horizontal", 5))
sketch4.addConstraint(Sketcher.Constraint("Vertical", 6))
sketch4.addConstraint(Sketcher.Constraint("Horizontal", 7))
sketch4.addConstraint(Sketcher.Constraint("Horizontal", 21))
sketch4.addConstraint(Sketcher.Constraint("Horizontal", 23))
sketch4.addConstraint(Sketcher.Constraint("Vertical", 24))
sketch4.addConstraint(Sketcher.Constraint("Horizontal", 25))
sketch4.addConstraint(Sketcher.Constraint("Vertical", 26))
sketch4.addConstraint(Sketcher.Constraint("DistanceY", 26, 2, 26, 1, Q("0.5 mm")))
sketch4.addConstraint(Sketcher.Constraint("DistanceY", 21, 2, 4, 2, Q("0.5 mm")))
sketch4.addConstraint(Sketcher.Constraint("DistanceX", 25, 1, 25, 2, Q("0.044872 mm")))
sketch4.addConstraint(Sketcher.Constraint("DistanceY", -1, 1, 4, 2, Q("0.2803 mm")))
sketch4.addConstraint(Sketcher.Constraint("DistanceX", 7, 2, 8, 2, Q("0.1251 mm")))
sketch4.addConstraint(Sketcher.Constraint("DistanceX", 5, 1, 5, 2, Q("0.339744 mm")))
sketch4.addConstraint(Sketcher.Constraint("DistanceX", 7, 2, 7, 1, Q("0.232672 mm")))
sketch4.addConstraint(Sketcher.Constraint("DistanceX", 21, 2, 21, 1, Q("0.092448 mm")))
sketch4.addConstraint(Sketcher.Constraint("DistanceX", 23, 1, 23, 2, Q("0.076923 mm")))
sketch4.addConstraint(Sketcher.Constraint("DistanceY", 6, 2, 6, 1, Q("0.051282 mm")))
sketch4.addConstraint(Sketcher.Constraint("DistanceY", 24, 1, 24, 2, Q("0.448718 mm")))
sketch4.addConstraint(Sketcher.Constraint("DistanceX", 22, 2, -1, 1, Q("0.480769 mm")))
sketch4.setExpression("Constraints[37]", "Params.sketch4_height")
pad3 = body.newObject("PartDesign::Pad", "Pad002")
pad3.Profile = sketch4
pad3.setExpression("Length", "Params.pad3_length")
pad3.Reversed = True

doc.recompute()
